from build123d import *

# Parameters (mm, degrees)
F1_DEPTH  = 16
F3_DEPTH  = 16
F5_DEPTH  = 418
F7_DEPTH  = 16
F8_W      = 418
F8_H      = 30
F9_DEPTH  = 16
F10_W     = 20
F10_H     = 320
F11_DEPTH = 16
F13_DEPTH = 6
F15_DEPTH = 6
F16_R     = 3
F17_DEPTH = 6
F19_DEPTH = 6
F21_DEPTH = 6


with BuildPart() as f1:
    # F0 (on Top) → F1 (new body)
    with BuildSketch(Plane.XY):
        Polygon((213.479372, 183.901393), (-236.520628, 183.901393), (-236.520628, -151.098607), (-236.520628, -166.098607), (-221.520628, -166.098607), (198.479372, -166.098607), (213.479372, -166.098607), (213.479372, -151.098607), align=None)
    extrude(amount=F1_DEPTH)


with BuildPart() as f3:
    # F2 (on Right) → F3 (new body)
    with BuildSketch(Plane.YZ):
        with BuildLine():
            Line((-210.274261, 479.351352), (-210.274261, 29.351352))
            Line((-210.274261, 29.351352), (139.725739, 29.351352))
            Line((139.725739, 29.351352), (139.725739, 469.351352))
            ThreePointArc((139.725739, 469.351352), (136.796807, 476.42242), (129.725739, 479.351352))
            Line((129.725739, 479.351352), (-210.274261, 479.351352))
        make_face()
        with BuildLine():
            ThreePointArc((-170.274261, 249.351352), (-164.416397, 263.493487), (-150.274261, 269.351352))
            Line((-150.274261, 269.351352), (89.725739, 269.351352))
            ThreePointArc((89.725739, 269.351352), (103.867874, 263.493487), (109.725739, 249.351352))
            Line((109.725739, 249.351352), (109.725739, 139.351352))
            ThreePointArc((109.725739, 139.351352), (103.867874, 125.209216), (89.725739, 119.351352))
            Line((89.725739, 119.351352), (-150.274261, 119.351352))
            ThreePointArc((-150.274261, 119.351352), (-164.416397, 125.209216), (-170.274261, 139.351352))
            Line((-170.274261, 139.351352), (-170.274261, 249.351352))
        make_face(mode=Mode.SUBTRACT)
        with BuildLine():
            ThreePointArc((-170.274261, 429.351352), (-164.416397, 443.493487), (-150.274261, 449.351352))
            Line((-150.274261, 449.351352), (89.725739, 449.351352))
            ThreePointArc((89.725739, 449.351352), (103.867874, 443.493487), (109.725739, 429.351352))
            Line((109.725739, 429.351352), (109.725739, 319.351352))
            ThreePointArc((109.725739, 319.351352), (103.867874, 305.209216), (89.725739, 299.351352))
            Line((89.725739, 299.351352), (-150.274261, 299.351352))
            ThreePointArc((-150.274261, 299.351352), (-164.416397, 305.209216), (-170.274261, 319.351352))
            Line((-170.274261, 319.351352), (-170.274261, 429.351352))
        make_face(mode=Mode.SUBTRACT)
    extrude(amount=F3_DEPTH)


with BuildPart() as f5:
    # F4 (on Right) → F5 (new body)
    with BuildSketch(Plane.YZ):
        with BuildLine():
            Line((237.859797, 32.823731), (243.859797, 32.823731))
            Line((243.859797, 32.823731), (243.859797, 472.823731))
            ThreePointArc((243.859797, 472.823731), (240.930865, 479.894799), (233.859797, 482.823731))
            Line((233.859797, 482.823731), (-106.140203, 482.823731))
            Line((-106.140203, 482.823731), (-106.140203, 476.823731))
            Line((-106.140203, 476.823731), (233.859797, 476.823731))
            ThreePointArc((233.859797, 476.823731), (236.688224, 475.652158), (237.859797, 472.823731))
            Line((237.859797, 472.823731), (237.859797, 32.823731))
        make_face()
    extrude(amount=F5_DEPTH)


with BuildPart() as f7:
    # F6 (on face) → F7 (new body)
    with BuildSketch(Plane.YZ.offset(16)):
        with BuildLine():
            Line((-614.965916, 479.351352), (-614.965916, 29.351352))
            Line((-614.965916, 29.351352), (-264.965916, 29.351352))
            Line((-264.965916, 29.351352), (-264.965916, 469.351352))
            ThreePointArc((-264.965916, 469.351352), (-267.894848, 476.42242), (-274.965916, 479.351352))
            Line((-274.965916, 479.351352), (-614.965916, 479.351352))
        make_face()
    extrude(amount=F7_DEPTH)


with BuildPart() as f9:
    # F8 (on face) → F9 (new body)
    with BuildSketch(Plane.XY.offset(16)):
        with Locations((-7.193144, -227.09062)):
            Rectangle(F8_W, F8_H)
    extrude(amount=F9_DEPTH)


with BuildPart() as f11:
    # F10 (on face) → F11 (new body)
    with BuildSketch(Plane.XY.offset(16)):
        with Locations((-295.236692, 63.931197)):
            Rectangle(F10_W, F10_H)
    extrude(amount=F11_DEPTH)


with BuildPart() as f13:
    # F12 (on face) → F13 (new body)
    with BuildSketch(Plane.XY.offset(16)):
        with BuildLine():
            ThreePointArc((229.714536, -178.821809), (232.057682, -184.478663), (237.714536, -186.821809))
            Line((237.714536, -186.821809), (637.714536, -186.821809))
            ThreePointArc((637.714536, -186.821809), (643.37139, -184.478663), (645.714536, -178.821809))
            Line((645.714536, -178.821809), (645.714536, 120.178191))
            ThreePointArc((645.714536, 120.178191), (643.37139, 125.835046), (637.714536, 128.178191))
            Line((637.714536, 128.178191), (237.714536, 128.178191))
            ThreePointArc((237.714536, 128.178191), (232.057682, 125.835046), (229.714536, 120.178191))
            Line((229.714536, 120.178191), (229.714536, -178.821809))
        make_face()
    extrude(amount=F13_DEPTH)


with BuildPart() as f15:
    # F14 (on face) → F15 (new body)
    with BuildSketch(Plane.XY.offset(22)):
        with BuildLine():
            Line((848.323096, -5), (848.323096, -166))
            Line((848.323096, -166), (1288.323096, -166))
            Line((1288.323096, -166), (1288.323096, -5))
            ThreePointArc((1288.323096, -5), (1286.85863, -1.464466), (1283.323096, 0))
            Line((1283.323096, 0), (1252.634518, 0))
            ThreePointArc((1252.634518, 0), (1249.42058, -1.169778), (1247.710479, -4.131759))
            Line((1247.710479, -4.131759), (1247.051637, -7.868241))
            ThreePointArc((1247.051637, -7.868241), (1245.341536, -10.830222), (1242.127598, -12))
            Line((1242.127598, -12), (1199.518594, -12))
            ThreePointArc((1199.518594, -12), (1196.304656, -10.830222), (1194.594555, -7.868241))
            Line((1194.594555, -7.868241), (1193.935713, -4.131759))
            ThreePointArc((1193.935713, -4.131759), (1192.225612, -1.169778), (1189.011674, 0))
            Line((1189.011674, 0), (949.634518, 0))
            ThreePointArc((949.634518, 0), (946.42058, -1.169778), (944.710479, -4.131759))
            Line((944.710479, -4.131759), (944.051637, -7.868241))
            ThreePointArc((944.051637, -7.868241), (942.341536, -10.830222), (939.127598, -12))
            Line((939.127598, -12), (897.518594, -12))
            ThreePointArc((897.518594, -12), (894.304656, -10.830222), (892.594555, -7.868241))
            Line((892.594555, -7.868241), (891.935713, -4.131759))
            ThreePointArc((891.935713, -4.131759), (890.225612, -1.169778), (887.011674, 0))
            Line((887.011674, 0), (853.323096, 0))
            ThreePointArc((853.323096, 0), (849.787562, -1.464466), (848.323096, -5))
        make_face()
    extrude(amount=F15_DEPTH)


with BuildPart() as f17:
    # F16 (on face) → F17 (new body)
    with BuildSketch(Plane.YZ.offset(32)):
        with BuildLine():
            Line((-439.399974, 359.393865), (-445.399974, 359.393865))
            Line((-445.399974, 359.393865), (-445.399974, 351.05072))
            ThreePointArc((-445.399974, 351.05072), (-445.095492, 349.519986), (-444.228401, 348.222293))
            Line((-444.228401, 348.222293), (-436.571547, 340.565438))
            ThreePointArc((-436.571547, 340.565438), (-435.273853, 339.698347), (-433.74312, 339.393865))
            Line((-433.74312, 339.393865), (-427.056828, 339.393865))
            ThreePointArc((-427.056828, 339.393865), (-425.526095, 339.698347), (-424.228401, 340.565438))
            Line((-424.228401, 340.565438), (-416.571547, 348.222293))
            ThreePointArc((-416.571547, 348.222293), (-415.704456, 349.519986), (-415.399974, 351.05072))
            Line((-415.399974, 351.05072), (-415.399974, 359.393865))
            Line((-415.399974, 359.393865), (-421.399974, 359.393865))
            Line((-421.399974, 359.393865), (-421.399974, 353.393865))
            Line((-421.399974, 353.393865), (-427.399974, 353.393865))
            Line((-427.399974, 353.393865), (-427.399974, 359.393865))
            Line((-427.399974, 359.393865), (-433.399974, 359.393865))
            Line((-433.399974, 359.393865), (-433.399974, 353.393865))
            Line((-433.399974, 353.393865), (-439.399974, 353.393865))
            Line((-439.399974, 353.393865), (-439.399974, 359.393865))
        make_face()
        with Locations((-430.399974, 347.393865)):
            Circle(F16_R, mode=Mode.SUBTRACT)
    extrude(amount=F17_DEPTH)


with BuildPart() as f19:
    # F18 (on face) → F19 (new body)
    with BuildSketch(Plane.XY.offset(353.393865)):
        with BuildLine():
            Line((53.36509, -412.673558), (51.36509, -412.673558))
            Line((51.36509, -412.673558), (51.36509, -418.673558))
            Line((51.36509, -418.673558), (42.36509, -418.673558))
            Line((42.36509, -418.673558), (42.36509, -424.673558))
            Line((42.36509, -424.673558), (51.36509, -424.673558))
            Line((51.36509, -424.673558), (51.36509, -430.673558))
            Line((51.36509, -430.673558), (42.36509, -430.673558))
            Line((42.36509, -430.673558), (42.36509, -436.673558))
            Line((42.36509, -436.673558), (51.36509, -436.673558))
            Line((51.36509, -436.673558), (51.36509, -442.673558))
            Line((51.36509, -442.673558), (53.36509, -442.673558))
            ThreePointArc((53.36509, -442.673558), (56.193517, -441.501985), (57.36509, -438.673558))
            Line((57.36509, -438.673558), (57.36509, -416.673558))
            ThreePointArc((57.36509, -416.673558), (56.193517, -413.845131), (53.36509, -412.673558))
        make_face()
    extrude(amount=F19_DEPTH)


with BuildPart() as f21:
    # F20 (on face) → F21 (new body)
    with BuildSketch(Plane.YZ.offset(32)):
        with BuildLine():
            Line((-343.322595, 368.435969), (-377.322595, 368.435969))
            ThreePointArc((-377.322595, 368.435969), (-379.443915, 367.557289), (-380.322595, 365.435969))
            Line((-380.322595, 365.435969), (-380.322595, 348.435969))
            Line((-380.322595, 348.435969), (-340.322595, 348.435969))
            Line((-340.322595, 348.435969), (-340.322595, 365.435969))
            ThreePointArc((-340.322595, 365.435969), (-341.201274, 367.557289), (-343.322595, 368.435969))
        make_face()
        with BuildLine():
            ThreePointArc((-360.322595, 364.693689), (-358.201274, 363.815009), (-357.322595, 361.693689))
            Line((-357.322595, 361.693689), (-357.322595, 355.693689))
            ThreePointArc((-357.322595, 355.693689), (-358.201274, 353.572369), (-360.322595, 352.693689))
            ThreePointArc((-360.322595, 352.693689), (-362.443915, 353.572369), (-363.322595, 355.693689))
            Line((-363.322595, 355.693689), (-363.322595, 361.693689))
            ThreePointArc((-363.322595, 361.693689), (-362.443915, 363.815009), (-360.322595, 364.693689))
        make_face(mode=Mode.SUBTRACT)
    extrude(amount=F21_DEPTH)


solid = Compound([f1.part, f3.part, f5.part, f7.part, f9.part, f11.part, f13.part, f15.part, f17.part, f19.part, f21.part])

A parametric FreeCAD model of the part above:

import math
import FreeCAD as App
import Part
import Sketcher

V = App.Vector
Q = App.Units.Quantity


def add_polygon(sketch, points):
    """Adds a closed chain of lines whose ends are joined by coincident constraints."""
    first, n = sketch.GeometryCount, len(points)
    for a, b in zip(points, points[1:] + points[:1]):
        sketch.addGeometry(Part.LineSegment(App.Vector(*a, 0), App.Vector(*b, 0)), False)
    for i in range(n):
        sketch.addConstraint(Sketcher.Constraint("Coincident", first + i, 2, first + (i + 1) % n, 1))

doc = App.newDocument("Part")
params = doc.addObject("Spreadsheet::Sheet", "Params")
for row, (alias, value) in enumerate([
    ("sketch1_width", "450 mm"),
    ("sketch1_height", "350 mm"),
    ("pad1_length", "16 mm"),
    ("sketch2_radius", "9.999999 mm"),
    ("sketch2_radius2", "20 mm"),
    ("sketch2_width", "350 mm"),
    ("sketch2_width2", "240 mm"),
    ("sketch2_height", "450 mm"),
    ("pad2_length", "16 mm"),
    ("sketch3_radius", "9.999999 mm"),
    ("sketch3_radius2", "4 mm"),
    ("sketch3_width", "340 mm"),
    ("sketch3_height", "440 mm"),
    ("pad3_length", "418 mm"),
    ("sketch4_radius", "9.999999 mm"),
    ("sketch4_width", "350 mm"),
    ("sketch4_height", "450 mm"),
    ("pad4_length", "16 mm"),
    ("sketch5_width", "418 mm"),
    ("sketch5_height", "30 mm"),
    ("pad5_length", "16 mm"),
    ("sketch6_width", "20 mm"),
    ("sketch6_height", "320 mm"),
    ("pad6_length", "16 mm"),
    ("sketch7_radius", "8.000001 mm"),
    ("sketch7_width", "400 mm"),
    ("sketch7_height", "299 mm"),
    ("pad7_length", "6 mm"),
    ("sketch8_radius", "5 mm"),
    ("sketch8_width", "440 mm"),
    ("sketch8_height", "161 mm"),
    ("pad8_length", "6 mm"),
    ("sketch9_diameter", "6 mm"),
    ("sketch9_radius", "3.999999 mm"),
    ("sketch9_width", "6 mm"),
    ("pad9_length", "6 mm"),
    ("sketch10_radius", "4 mm"),
    ("sketch10_width", "2 mm"),
    ("sketch10_width2", "9 mm"),
    ("sketch10_height", "6 mm"),
    ("pad10_length", "6 mm"),
    ("sketch11_radius", "3.000001 mm"),
    ("sketch11_width", "34 mm"),
    ("sketch11_height", "17 mm"),
    ("sketch11_height2", "6 mm"),
    ("pad11_length", "6 mm"),
], start=1):
    params.set(f"A{row}", alias)
    params.set(f"B{row}", "=" + value)
    params.setAlias(f"B{row}", alias)

body = doc.addObject("PartDesign::Body", "Body")

# Sketch on XY plane
sketch1 = body.newObject("Sketcher::SketchObject", "Sketch")
sketch1.AttachmentSupport = (doc.getObject("XY_Plane"), [""])
sketch1.MapMode = "FlatFace"
add_polygon(sketch1, [(213.479372, 183.901393), (-236.520628, 183.901393), (-236.520628, -166.098607), (213.479372, -166.098607)])  # lines 0-3
sketch1.addConstraint(Sketcher.Constraint("Horizontal", 0))
sketch1.addConstraint(Sketcher.Constraint("Vertical", 1))
sketch1.addConstraint(Sketcher.Constraint("Horizontal", 2))
sketch1.addConstraint(Sketcher.Constraint("Vertical", 3))
sketch1.addConstraint(Sketcher.Constraint("DistanceX", 0, 2, 0, 1, Q("450 mm")))
sketch1.addConstraint(Sketcher.Constraint("DistanceY", 1, 2, 1, 1, Q("350 mm")))
sketch1.addConstraint(Sketcher.Constraint("DistanceX", 0, 2, -1, 1, Q("236.520628 mm")))
sketch1.addConstraint(Sketcher.Constraint("DistanceY", -1, 1, 0, 2, Q("183.901393 mm")))
sketch1.setExpression("Constraints[8]", "Params.sketch1_width")
sketch1.setExpression("Constraints[9]", "Params.sketch1_height")
pad1 = body.newObject("PartDesign::Pad", "Pad")
pad1.Profile = sketch1
pad1.setExpression("Length", "Params.pad1_length")
body2 = doc.addObject("PartDesign::Body", "Body001")

# Sketch on YZ plane
sketch2 = body2.newObject("Sketcher::SketchObject", "Sketch001")
sketch2.AttachmentSupport = (doc.getObject("YZ_Plane001"), [""])
sketch2.MapMode = "FlatFace"
sketch2.addGeometry(Part.LineSegment(V(-210.274261, 479.351352, 0), V(-210.274261, 29.351352, 0)), False)
sketch2.addGeometry(Part.LineSegment(V(-210.274261, 29.351352, 0), V(139.725739, 29.351352, 0)), False)
sketch2.addGeometry(Part.LineSegment(V(139.725739, 29.351352, 0), V(139.725739, 469.351352, 0)), False)
sketch2.addGeometry(Part.ArcOfCircle(Part.Circle(V(129.72574, 469.351353, 0), V(0, 0, 1), 9.999999), math.radians(-0.000004), math.radians(90.000004)), False)
sketch2.addGeometry(Part.LineSegment(V(129.725739, 479.351352, 0), V(-210.274261, 479.351352, 0)), False)
sketch2.addGeometry(Part.LineSegment(V(-170.274261, 139.351352, 0), V(-170.274261, 249.351352, 0)), False)
sketch2.addGeometry(Part.ArcOfCircle(Part.Circle(V(-150.274261, 249.351352, 0), V(0, 0, 1), 20), math.radians(90.000001), math.radians(179.999999)), False)
sketch2.addGeometry(Part.LineSegment(V(-150.274261, 269.351352, 0), V(89.725739, 269.351352, 0)), False)
sketch2.addGeometry(Part.ArcOfCircle(Part.Circle(V(89.725737, 249.35135, 0), V(0, 0, 1), 20.000002), math.radians(0.000006), math.radians(89.999994)), False)
sketch2.addGeometry(Part.LineSegment(V(109.725739, 249.351352, 0), V(109.725739, 139.351352, 0)), False)
sketch2.addGeometry(Part.ArcOfCircle(Part.Circle(V(89.725739, 139.351352, 0), V(0, 0, 1), 20), math.radians(-89.999999), math.radians(-0.000001)), False)
sketch2.addGeometry(Part.LineSegment(V(89.725739, 119.351352, 0), V(-150.274261, 119.351352, 0)), False)
sketch2.addGeometry(Part.ArcOfCircle(Part.Circle(V(-150.274262, 139.351351, 0), V(0, 0, 1), 19.999999), math.radians(179.999996), math.radians(270.000004)), False)
sketch2.addGeometry(Part.LineSegment(V(-170.274261, 319.351352, 0), V(-170.274261, 429.351352, 0)), False)
sketch2.addGeometry(Part.ArcOfCircle(Part.Circle(V(-150.274261, 429.351352, 0), V(0, 0, 1), 20), math.radians(90.000001), math.radians(179.999999)), False)
sketch2.addGeometry(Part.LineSegment(V(-150.274261, 449.351352, 0), V(89.725739, 449.351352, 0)), False)
sketch2.addGeometry(Part.ArcOfCircle(Part.Circle(V(89.725737, 429.35135, 0), V(0, 0, 1), 20.000002), math.radians(0.000006), math.radians(89.999994)), False)
sketch2.addGeometry(Part.LineSegment(V(109.725739, 429.351352, 0), V(109.725739, 319.351352, 0)), False)
sketch2.addGeometry(Part.ArcOfCircle(Part.Circle(V(89.725739, 319.351352, 0), V(0, 0, 1), 20), math.radians(-89.999999), math.radians(-0.000001)), False)
sketch2.addGeometry(Part.LineSegment(V(89.725739, 299.351352, 0), V(-150.274261, 299.351352, 0)), False)
sketch2.addGeometry(Part.ArcOfCircle(Part.Circle(V(-150.274262, 319.351351, 0), V(0, 0, 1), 19.999999), math.radians(179.999996), math.radians(270.000004)), False)
sketch2.addConstraint(Sketcher.Constraint("Coincident", 0, 2, 1, 1))
sketch2.addConstraint(Sketcher.Constraint("Coincident", 1, 2, 2, 1))
sketch2.addConstraint(Sketcher.Constraint("Tangent", 2, 2, 3, 1))
sketch2.addConstraint(Sketcher.Constraint("Tangent", 3, 2, 4, 1))
sketch2.addConstraint(Sketcher.Constraint("Coincident", 4, 2, 0, 1))
sketch2.addConstraint(Sketcher.Constraint("Tangent", 5, 2, 6, 2))
sketch2.addConstraint(Sketcher.Constraint("Tangent", 6, 1, 7, 1))
sketch2.addConstraint(Sketcher.Constraint("Tangent", 7, 2, 8, 2))
sketch2.addConstraint(Sketcher.Constraint("Tangent", 8, 1, 9, 1))
sketch2.addConstraint(Sketcher.Constraint("Tangent", 9, 2, 10, 2))
sketch2.addConstraint(Sketcher.Constraint("Tangent", 10, 1, 11, 1))
sketch2.addConstraint(Sketcher.Constraint("Tangent", 11, 2, 12, 2))
sketch2.addConstraint(Sketcher.Constraint("Tangent", 12, 1, 5, 1))
sketch2.addConstraint(Sketcher.Constraint("Tangent", 13, 2, 14, 2))
sketch2.addConstraint(Sketcher.Constraint("Tangent", 14, 1, 15, 1))
sketch2.addConstraint(Sketcher.Constraint("Tangent", 15, 2, 16, 2))
sketch2.addConstraint(Sketcher.Constraint("Tangent", 16, 1, 17, 1))
sketch2.addConstraint(Sketcher.Constraint("Tangent", 17, 2, 18, 2))
sketch2.addConstraint(Sketcher.Constraint("Tangent", 18, 1, 19, 1))
sketch2.addConstraint(Sketcher.Constraint("Tangent", 19, 2, 20, 2))
sketch2.addConstraint(Sketcher.Constraint("Tangent", 20, 1, 13, 1))
sketch2.addConstraint(Sketcher.Constraint("Vertical", 0))
sketch2.addConstraint(Sketcher.Constraint("Horizontal", 1))
sketch2.addConstraint(Sketcher.Constraint("Vertical", 2))
sketch2.addConstraint(Sketcher.Constraint("Horizontal", 4))
sketch2.addConstraint(Sketcher.Constraint("Vertical", 5))
sketch2.addConstraint(Sketcher.Constraint("Horizontal", 7))
sketch2.addConstraint(Sketcher.Constraint("Vertical", 9))
sketch2.addConstraint(Sketcher.Constraint("Horizontal", 11))
sketch2.addConstraint(Sketcher.Constraint("Vertical", 13))
sketch2.addConstraint(Sketcher.Constraint("Horizontal", 15))
sketch2.addConstraint(Sketcher.Constraint("Vertical", 17))
sketch2.addConstraint(Sketcher.Constraint("Horizontal", 19))
sketch2.addConstraint(Sketcher.Constraint("Equal", 6, 8))
sketch2.addConstraint(Sketcher.Constraint("Equal", 8, 10))
sketch2.addConstraint(Sketcher.Constraint("Equal", 10, 12))
sketch2.addConstraint(Sketcher.Constraint("Equal", 12, 14))
sketch2.addConstraint(Sketcher.Constraint("Equal", 14, 16))
sketch2.addConstraint(Sketcher.Constraint("Equal", 16, 18))
sketch2.addConstraint(Sketcher.Constraint("Equal", 18, 20))
sketch2.addConstraint(Sketcher.Constraint("Vertical", 12, 3, 14, 3))
sketch2.addConstraint(Sketcher.Constraint("Vertical", 10, 3, 16, 3))
sketch2.addConstraint(Sketcher.Constraint("Equal", 9, 13))
sketch2.addConstraint(Sketcher.Constraint("Radius", 3, Q("9.999999 mm")))
sketch2.addConstraint(Sketcher.Constraint("Radius", 6, Q("20 mm")))
sketch2.addConstraint(Sketcher.Constraint("DistanceX", 1, 1, 1, 2, Q("350 mm")))
sketch2.addConstraint(Sketcher.Constraint("DistanceX", 7, 1, 7, 2, Q("240 mm")))
sketch2.addConstraint(Sketcher.Constraint("DistanceY", 0, 2, 0, 1, Q("450 mm")))
sketch2.addConstraint(Sketcher.Constraint("DistanceY", 5, 1, 5, 2, Q("110 mm")))
sketch2.addConstraint(Sketcher.Constraint("DistanceX", 6, 3, 3, 3, Q("280 mm")))
sketch2.addConstraint(Sketcher.Constraint("DistanceY", 6, 3, 3, 3, Q("220.000001 mm")))
sketch2.addConstraint(Sketcher.Constraint("DistanceY", 6, 3, 14, 3, Q("180 mm")))
sketch2.addConstraint(Sketcher.Constraint("DistanceX", -1, 1, 3, 3, Q("129.72574 mm")))
sketch2.addConstraint(Sketcher.Constraint("DistanceY", -1, 1, 6, 3, Q("249.351352 mm")))
sketch2.setExpression("Constraints[43]", "Params.sketch2_radius")
sketch2.setExpression("Constraints[44]", "Params.sketch2_radius2")
sketch2.setExpression("Constraints[45]", "Params.sketch2_width")
sketch2.setExpression("Constraints[46]", "Params.sketch2_width2")
sketch2.setExpression("Constraints[47]", "Params.sketch2_height")
pad2 = body2.newObject("PartDesign::Pad", "Pad001")
pad2.Profile = sketch2
pad2.setExpression("Length", "Params.pad2_length")
body3 = doc.addObject("PartDesign::Body", "Body002")

# Sketch on YZ plane
sketch3 = body3.newObject("Sketcher::SketchObject", "Sketch002")
sketch3.AttachmentSupport = (doc.getObject("YZ_Plane002"), [""])
sketch3.MapMode = "FlatFace"
sketch3.addGeometry(Part.LineSegment(V(237.859797, 32.823731, 0), V(243.859797, 32.823731, 0)), False)
sketch3.addGeometry(Part.LineSegment(V(243.859797, 32.823731, 0), V(243.859797, 472.823731, 0)), False)
sketch3.addGeometry(Part.ArcOfCircle(Part.Circle(V(233.859798, 472.823732, 0), V(0, 0, 1), 9.999999), math.radians(-0.000004), math.radians(90.000004)), False)
sketch3.addGeometry(Part.LineSegment(V(233.859797, 482.823731, 0), V(-106.140203, 482.823731, 0)), False)
sketch3.addGeometry(Part.LineSegment(V(-106.140203, 482.823731, 0), V(-106.140203, 476.823731, 0)), False)
sketch3.addGeometry(Part.LineSegment(V(-106.140203, 476.823731, 0), V(233.859797, 476.823731, 0)), False)
sketch3.addGeometry(Part.ArcOfCircle(Part.Circle(V(233.859797, 472.823731, 0), V(0, 0, 1), 4), math.radians(0.000006), math.radians(89.999994)), False)
sketch3.addGeometry(Part.LineSegment(V(237.859797, 472.823731, 0), V(237.859797, 32.823731, 0)), False)
sketch3.addConstraint(Sketcher.Constraint("Coincident", 0, 2, 1, 1))
sketch3.addConstraint(Sketcher.Constraint("Tangent", 1, 2, 2, 1))
sketch3.addConstraint(Sketcher.Constraint("Tangent", 2, 2, 3, 1))
sketch3.addConstraint(Sketcher.Constraint("Coincident", 3, 2, 4, 1))
sketch3.addConstraint(Sketcher.Constraint("Coincident", 4, 2, 5, 1))
sketch3.addConstraint(Sketcher.Constraint("Tangent", 5, 2, 6, 2))
sketch3.addConstraint(Sketcher.Constraint("Tangent", 6, 1, 7, 1))
sketch3.addConstraint(Sketcher.Constraint("Coincident", 7, 2, 0, 1))
sketch3.addConstraint(Sketcher.Constraint("Horizontal", 0))
sketch3.addConstraint(Sketcher.Constraint("Vertical", 1))
sketch3.addConstraint(Sketcher.Constraint("Horizontal", 3))
sketch3.addConstraint(Sketcher.Constraint("Vertical", 4))
sketch3.addConstraint(Sketcher.Constraint("Horizontal", 5))
sketch3.addConstraint(Sketcher.Constraint("Vertical", 7))
sketch3.addConstraint(Sketcher.Constraint("Coincident", 6, 3, 2, 3))
sketch3.addConstraint(Sketcher.Constraint("Radius", 2, Q("9.999999 mm")))
sketch3.addConstraint(Sketcher.Constraint("Radius", 6, Q("4 mm")))
sketch3.addConstraint(Sketcher.Constraint("DistanceX", 3, 2, 3, 1, Q("340 mm")))
sketch3.addConstraint(Sketcher.Constraint("DistanceY", 1, 1, 1, 2, Q("440 mm")))
sketch3.addConstraint(Sketcher.Constraint("DistanceY", -1, 1, 2, 3, Q("472.823732 mm")))
sketch3.addConstraint(Sketcher.Constraint("DistanceX", -1, 1, 2, 3, Q("233.859798 mm")))
sketch3.setExpression("Constraints[15]", "Params.sketch3_radius")
sketch3.setExpression("Constraints[16]", "Params.sketch3_radius2")
sketch3.setExpression("Constraints[17]", "Params.sketch3_width")
sketch3.setExpression("Constraints[18]", "Params.sketch3_height")
pad3 = body3.newObject("PartDesign::Pad", "Pad002")
pad3.Profile = sketch3
pad3.setExpression("Length", "Params.pad3_length")
body4 = doc.addObject("PartDesign::Body", "Body003")

# Sketch on YZ plane
sketch4 = body4.newObject("Sketcher::SketchObject", "Sketch003")
sketch4.AttachmentSupport = (doc.getObject("YZ_Plane003"), [""])
sketch4.MapMode = "FlatFace"
sketch4.AttachmentOffset = App.Placement(V(0, 0, 16), App.Rotation())
sketch4.addGeometry(Part.LineSegment(V(-614.965916, 479.351352, 0), V(-614.965916, 29.351352, 0)), False)
sketch4.addGeometry(Part.LineSegment(V(-614.965916, 29.351352, 0), V(-264.965916, 29.351352, 0)), False)
sketch4.addGeometry(Part.LineSegment(V(-264.965916, 29.351352, 0), V(-264.965916, 469.351352, 0)), False)
sketch4.addGeometry(Part.ArcOfCircle(Part.Circle(V(-274.965915, 469.351353, 0), V(0, 0, 1), 9.999999), math.radians(-0.000004), math.radians(90.000004)), False)
sketch4.addGeometry(Part.LineSegment(V(-274.965916, 479.351352, 0), V(-614.965916, 479.351352, 0)), False)
sketch4.addConstraint(Sketcher.Constraint("Coincident", 0, 2, 1, 1))
sketch4.addConstraint(Sketcher.Constraint("Coincident", 1, 2, 2, 1))
sketch4.addConstraint(Sketcher.Constraint("Tangent", 2, 2, 3, 1))
sketch4.addConstraint(Sketcher.Constraint("Tangent", 3, 2, 4, 1))
sketch4.addConstraint(Sketcher.Constraint("Coincident", 4, 2, 0, 1))
sketch4.addConstraint(Sketcher.Constraint("Vertical", 0))
sketch4.addConstraint(Sketcher.Constraint("Horizontal", 1))
sketch4.addConstraint(Sketcher.Constraint("Vertical", 2))
sketch4.addConstraint(Sketcher.Constraint("Horizontal", 4))
sketch4.addConstraint(Sketcher.Constraint("Radius", 3, Q("9.999999 mm")))
sketch4.addConstraint(Sketcher.Constraint("DistanceX", 1, 1, 1, 2, Q("350 mm")))
sketch4.addConstraint(Sketcher.Constraint("DistanceY", 0, 2, 0, 1, Q("450 mm")))
sketch4.addConstraint(Sketcher.Constraint("DistanceY", -1, 1, 0, 2, Q("29.351352 mm")))
sketch4.addConstraint(Sketcher.Constraint("DistanceX", 3, 3, -1, 1, Q("274.965915 mm")))
sketch4.setExpression("Constraints[9]", "Params.sketch4_radius")
sketch4.setExpression("Constraints[10]", "Params.sketch4_width")
sketch4.setExpression("Constraints[11]", "Params.sketch4_height")
pad4 = body4.newObject("PartDesign::Pad", "Pad003")
pad4.Profile = sketch4
pad4.setExpression("Length", "Params.pad4_length")
body5 = doc.addObject("PartDesign::Body", "Body004")

# Sketch on XY plane
sketch5 = body5.newObject("Sketcher::SketchObject", "Sketch004")
sketch5.AttachmentSupport = (doc.getObject("XY_Plane004"), [""])
sketch5.MapMode = "FlatFace"
sketch5.AttachmentOffset = App.Placement(V(0, 0, 16), App.Rotation())
add_polygon(sketch5, [(-216.193144, -212.09062), (-216.193144, -242.09062), (201.806856, -242.09062), (201.806856, -212.09062)])  # lines 0-3
sketch5.addConstraint(Sketcher.Constraint("Vertical", 0))
sketch5.addConstraint(Sketcher.Constraint("Horizontal", 1))
sketch5.addConstraint(Sketcher.Constraint("Vertical", 2))
sketch5.addConstraint(Sketcher.Constraint("Horizontal", 3))
sketch5.addConstraint(Sketcher.Constraint("DistanceX", 1, 1, 1, 2, Q("418 mm")))
sketch5.addConstraint(Sketcher.Constraint("DistanceY", 0, 2, 0, 1, Q("30 mm")))
sketch5.addConstraint(Sketcher.Constraint("DistanceY", 0, 2, -1, 1, Q("242.09062 mm")))
sketch5.addConstraint(Sketcher.Constraint("DistanceX", 0, 2, -1, 1, Q("216.193144 mm")))
sketch5.setExpression("Constraints[8]", "Params.sketch5_width")
sketch5.setExpression("Constraints[9]", "Params.sketch5_height")
pad5 = body5.newObject("PartDesign::Pad", "Pad004")
pad5.Profile = sketch5
pad5.setExpression("Length", "Params.pad5_length")
body6 = doc.addObject("PartDesign::Body", "Body005")

# Sketch on XY plane
sketch6 = body6.newObject("Sketcher::SketchObject", "Sketch005")
sketch6.AttachmentSupport = (doc.getObject("XY_Plane005"), [""])
sketch6.MapMode = "FlatFace"
sketch6.AttachmentOffset = App.Placement(V(0, 0, 16), App.Rotation())
add_polygon(sketch6, [(-305.236692, 223.931197), (-305.236692, -96.068803), (-285.236692, -96.068803), (-285.236692, 223.931197)])  # lines 0-3
sketch6.addConstraint(Sketcher.Constraint("Vertical", 0))
sketch6.addConstraint(Sketcher.Constraint("Horizontal", 1))
sketch6.addConstraint(Sketcher.Constraint("Vertical", 2))
sketch6.addConstraint(Sketcher.Constraint("Horizontal", 3))
sketch6.addConstraint(Sketcher.Constraint("DistanceX", 1, 1, 1, 2, Q("20 mm")))
sketch6.addConstraint(Sketcher.Constraint("DistanceY", 0, 2, 0, 1, Q("320 mm")))
sketch6.addConstraint(Sketcher.Constraint("DistanceX", 0, 2, -1, 1, Q("305.236692 mm")))
sketch6.addConstraint(Sketcher.Constraint("DistanceY", 0, 2, -1, 1, Q("96.068803 mm")))
sketch6.setExpression("Constraints[8]", "Params.sketch6_width")
sketch6.setExpression("Constraints[9]", "Params.sketch6_height")
pad6 = body6.newObject("PartDesign::Pad", "Pad005")
pad6.Profile = sketch6
pad6.setExpression("Length", "Params.pad6_length")
body7 = doc.addObject("PartDesign::Body", "Body006")

# Sketch on XY plane
sketch7 = body7.newObject("Sketcher::SketchObject", "Sketch006")
sketch7.AttachmentSupport = (doc.getObject("XY_Plane006"), [""])
sketch7.MapMode = "FlatFace"
sketch7.AttachmentOffset = App.Placement(V(0, 0, 16), App.Rotation())
sketch7.addGeometry(Part.ArcOfCircle(Part.Circle(V(237.714537, -178.821808, 0), V(0, 0, 1), 8.000001), math.radians(-179.999994), math.radians(-90.000006)), False)
sketch7.addGeometry(Part.LineSegment(V(237.714536, -186.821809, 0), V(637.714536, -186.821809, 0)), False)
sketch7.addGeometry(Part.ArcOfCircle(Part.Circle(V(637.714535, -178.821808, 0), V(0, 0, 1), 8.000001), math.radians(-89.999994), math.radians(-0.000006)), False)
sketch7.addGeometry(Part.LineSegment(V(645.714536, -178.821809, 0), V(645.714536, 120.178191, 0)), False)
sketch7.addGeometry(Part.ArcOfCircle(Part.Circle(V(637.714537, 120.178192, 0), V(0, 0, 1), 7.999999), math.radians(-0.000006), math.radians(90.000006)), False)
sketch7.addGeometry(Part.LineSegment(V(637.714536, 128.178191, 0), V(237.714536, 128.178191, 0)), False)
sketch7.addGeometry(Part.ArcOfCircle(Part.Circle(V(237.714535, 120.178192, 0), V(0, 0, 1), 7.999999), math.radians(89.999994), math.radians(180.000006)), False)
sketch7.addGeometry(Part.LineSegment(V(229.714536, 120.178191, 0), V(229.714536, -178.821809, 0)), False)
sketch7.addConstraint(Sketcher.Constraint("Tangent", 0, 2, 1, 1))
sketch7.addConstraint(Sketcher.Constraint("Tangent", 1, 2, 2, 1))
sketch7.addConstraint(Sketcher.Constraint("Tangent", 2, 2, 3, 1))
sketch7.addConstraint(Sketcher.Constraint("Tangent", 3, 2, 4, 1))
sketch7.addConstraint(Sketcher.Constraint("Tangent", 4, 2, 5, 1))
sketch7.addConstraint(Sketcher.Constraint("Tangent", 5, 2, 6, 1))
sketch7.addConstraint(Sketcher.Constraint("Tangent", 6, 2, 7, 1))
sketch7.addConstraint(Sketcher.Constraint("Tangent", 7, 2, 0, 1))
sketch7.addConstraint(Sketcher.Constraint("Horizontal", 1))
sketch7.addConstraint(Sketcher.Constraint("Vertical", 3))
sketch7.addConstraint(Sketcher.Constraint("Horizontal", 5))
sketch7.addConstraint(Sketcher.Constraint("Vertical", 7))
sketch7.addConstraint(Sketcher.Constraint("Equal", 0, 2))
sketch7.addConstraint(Sketcher.Constraint("Equal", 2, 4))
sketch7.addConstraint(Sketcher.Constraint("Equal", 4, 6))
sketch7.addConstraint(Sketcher.Constraint("Radius", 0, Q("8.000001 mm")))
sketch7.addConstraint(Sketcher.Constraint("DistanceX", 1, 1, 1, 2, Q("400 mm")))
sketch7.addConstraint(Sketcher.Constraint("DistanceY", 3, 1, 3, 2, Q("299 mm")))
sketch7.addConstraint(Sketcher.Constraint("DistanceY", 0, 3, -1, 1, Q("178.821808 mm")))
sketch7.addConstraint(Sketcher.Constraint("DistanceX", -1, 1, 0, 3, Q("237.714537 mm")))
sketch7.setExpression("Constraints[15]", "Params.sketch7_radius")
sketch7.setExpression("Constraints[16]", "Params.sketch7_width")
sketch7.setExpression("Constraints[17]", "Params.sketch7_height")
pad7 = body7.newObject("PartDesign::Pad", "Pad006")
pad7.Profile = sketch7
pad7.setExpression("Length", "Params.pad7_length")
body8 = doc.addObject("PartDesign::Body", "Body007")

# Sketch on XY plane
sketch8 = body8.newObject("Sketcher::SketchObject", "Sketch007")
sketch8.AttachmentSupport = (doc.getObject("XY_Plane007"), [""])
sketch8.MapMode = "FlatFace"
sketch8.AttachmentOffset = App.Placement(V(0, 0, 22), App.Rotation())
sketch8.addGeometry(Part.LineSegment(V(848.323096, -5, 0), V(848.323096, -166, 0)), False)
sketch8.addGeometry(Part.LineSegment(V(848.323096, -166, 0), V(1288.323096, -166, 0)), False)
sketch8.addGeometry(Part.LineSegment(V(1288.323096, -166, 0), V(1288.323096, -5, 0)), False)
sketch8.addGeometry(Part.ArcOfCircle(Part.Circle(V(1283.323096, -5, 0), V(0, 0, 1), 5), math.radians(-0.000004), math.radians(90.000004)), False)
sketch8.addGeometry(Part.LineSegment(V(1283.323096, 0, 0), V(1252.634518, 0, 0)), False)
sketch8.addGeometry(Part.ArcOfCircle(Part.Circle(V(1252.634519, -5.000001, 0), V(0, 0, 1), 5.000001), math.radians(90.000008), math.radians(169.999987)), False)
sketch8.addGeometry(Part.LineSegment(V(1247.710479, -4.131759, 0), V(1247.051637, -7.868241, 0)), False)
sketch8.addGeometry(Part.ArcOfCircle(Part.Circle(V(1242.127597, -6.999999, 0), V(0, 0, 1), 5.000001), math.radians(-89.999992), math.radians(-10.000013)), False)
sketch8.addGeometry(Part.LineSegment(V(1242.127598, -12, 0), V(1199.518594, -12, 0)), False)
sketch8.addGeometry(Part.ArcOfCircle(Part.Circle(V(1199.518595, -6.999999, 0), V(0, 0, 1), 5.000001), math.radians(-169.999987), math.radians(-90.000008)), False)
sketch8.addGeometry(Part.LineSegment(V(1194.594555, -7.868241, 0), V(1193.935713, -4.131759, 0)), False)
sketch8.addGeometry(Part.ArcOfCircle(Part.Circle(V(1189.011673, -5.000001, 0), V(0, 0, 1), 5.000001), math.radians(10.000013), math.radians(89.999992)), False)
sketch8.addGeometry(Part.LineSegment(V(1189.011674, 0, 0), V(949.634518, 0, 0)), False)
sketch8.addGeometry(Part.ArcOfCircle(Part.Circle(V(949.634519, -5.000001, 0), V(0, 0, 1), 5.000001), math.radians(90.000008), math.radians(169.999987)), False)
sketch8.addGeometry(Part.LineSegment(V(944.710479, -4.131759, 0), V(944.051637, -7.868241, 0)), False)
sketch8.addGeometry(Part.ArcOfCircle(Part.Circle(V(939.127597, -6.999999, 0), V(0, 0, 1), 5.000001), math.radians(-89.999992), math.radians(-10.000013)), False)
sketch8.addGeometry(Part.LineSegment(V(939.127598, -12, 0), V(897.518594, -12, 0)), False)
sketch8.addGeometry(Part.ArcOfCircle(Part.Circle(V(897.518595, -6.999999, 0), V(0, 0, 1), 5.000001), math.radians(-169.999987), math.radians(-90.000008)), False)
sketch8.addGeometry(Part.LineSegment(V(892.594555, -7.868241, 0), V(891.935713, -4.131759, 0)), False)
sketch8.addGeometry(Part.ArcOfCircle(Part.Circle(V(887.011673, -5.000001, 0), V(0, 0, 1), 5.000001), math.radians(10.000013), math.radians(89.999992)), False)
sketch8.addGeometry(Part.LineSegment(V(887.011674, 0, 0), V(853.323096, 0, 0)), False)
sketch8.addGeometry(Part.ArcOfCircle(Part.Circle(V(853.323096, -5, 0), V(0, 0, 1), 5), math.radians(89.999996), math.radians(180.000004)), False)
sketch8.addConstraint(Sketcher.Constraint("Coincident", 0, 2, 1, 1))
sketch8.addConstraint(Sketcher.Constraint("Coincident", 1, 2, 2, 1))
sketch8.addConstraint(Sketcher.Constraint("Tangent", 2, 2, 3, 1))
sketch8.addConstraint(Sketcher.Constraint("Tangent", 3, 2, 4, 1))
sketch8.addConstraint(Sketcher.Constraint("Tangent", 4, 2, 5, 1))
sketch8.addConstraint(Sketcher.Constraint("Tangent", 5, 2, 6, 1))
sketch8.addConstraint(Sketcher.Constraint("Tangent", 6, 2, 7, 2))
sketch8.addConstraint(Sketcher.Constraint("Tangent", 7, 1, 8, 1))
sketch8.addConstraint(Sketcher.Constraint("Tangent", 8, 2, 9, 2))
sketch8.addConstraint(Sketcher.Constraint("Tangent", 9, 1, 10, 1))
sketch8.addConstraint(Sketcher.Constraint("Tangent", 10, 2, 11, 1))
sketch8.addConstraint(Sketcher.Constraint("Tangent", 11, 2, 12, 1))
sketch8.addConstraint(Sketcher.Constraint("Tangent", 12, 2, 13, 1))
sketch8.addConstraint(Sketcher.Constraint("Tangent", 13, 2, 14, 1))
sketch8.addConstraint(Sketcher.Constraint("Tangent", 14, 2, 15, 2))
sketch8.addConstraint(Sketcher.Constraint("Tangent", 15, 1, 16, 1))
sketch8.addConstraint(Sketcher.Constraint("Tangent", 16, 2, 17, 2))
sketch8.addConstraint(Sketcher.Constraint("Tangent", 17, 1, 18, 1))
sketch8.addConstraint(Sketcher.Constraint("Tangent", 18, 2, 19, 1))
sketch8.addConstraint(Sketcher.Constraint("Tangent", 19, 2, 20, 1))
sketch8.addConstraint(Sketcher.Constraint("Tangent", 20, 2, 21, 1))
sketch8.addConstraint(Sketcher.Constraint("Tangent", 21, 2, 0, 1))
sketch8.addConstraint(Sketcher.Constraint("Vertical", 0))
sketch8.addConstraint(Sketcher.Constraint("Horizontal", 1))
sketch8.addConstraint(Sketcher.Constraint("Vertical", 2))
sketch8.addConstraint(Sketcher.Constraint("Horizontal", 4))
sketch8.addConstraint(Sketcher.Constraint("Horizontal", 8))
sketch8.addConstraint(Sketcher.Constraint("Horizontal", 12))
sketch8.addConstraint(Sketcher.Constraint("Horizontal", 16))
sketch8.addConstraint(Sketcher.Constraint("Horizontal", 20))
sketch8.addConstraint(Sketcher.Constraint("Equal", 3, 5))
sketch8.addConstraint(Sketcher.Constraint("Equal", 5, 7))
sketch8.addConstraint(Sketcher.Constraint("Equal", 7, 9))
sketch8.addConstraint(Sketcher.Constraint("Equal", 9, 11))
sketch8.addConstraint(Sketcher.Constraint("Equal", 11, 13))
sketch8.addConstraint(Sketcher.Constraint("Equal", 13, 15))
sketch8.addConstraint(Sketcher.Constraint("Equal", 15, 17))
sketch8.addConstraint(Sketcher.Constraint("Equal", 17, 19))
sketch8.addConstraint(Sketcher.Constraint("Equal", 19, 21))
sketch8.addConstraint(Sketcher.Constraint("PointOnObject", 3, 2, -1))
sketch8.addConstraint(Sketcher.Constraint("PointOnObject", 11, 2, -1))
sketch8.addConstraint(Sketcher.Constraint("PointOnObject", 19, 2, -1))
sketch8.addConstraint(Sketcher.Constraint("Parallel", 6, 14))
sketch8.addConstraint(Sketcher.Constraint("Parallel", 10, 18))
sketch8.addConstraint(Sketcher.Constraint("Horizontal", 9, 3, 15, 3))
sketch8.addConstraint(Sketcher.Constraint("Horizontal", 6, 2, 9, 1))
sketch8.addConstraint(Sketcher.Constraint("Radius", 3, Q("5 mm")))
sketch8.addConstraint(Sketcher.Constraint("DistanceX", 1, 1, 1, 2, Q("440 mm")))
sketch8.addConstraint(Sketcher.Constraint("DistanceY", 0, 2, 0, 1, Q("161 mm")))
sketch8.addConstraint(Sketcher.Constraint("Angle", 6, Q("-99.999991 deg")))
sketch8.addConstraint(Sketcher.Constraint("DistanceY", 7, 3, -1, 1, Q("6.999999 mm")))
sketch8.addConstraint(Sketcher.Constraint("DistanceX", 13, 3, 5, 3, Q("303 mm")))
sketch8.addConstraint(Sketcher.Constraint("DistanceX", 17, 3, 9, 3, Q("302 mm")))
sketch8.addConstraint(Sketcher.Constraint("DistanceX", 4, 2, 4, 1, Q("30.688578 mm")))
sketch8.addConstraint(Sketcher.Constraint("DistanceX", 20, 2, 20, 1, Q("33.688578 mm")))
sketch8.addConstraint(Sketcher.Constraint("DistanceX", -1, 1, 7, 1, Q("1242.127598 mm")))
sketch8.setExpression("Constraints[46]", "Params.sketch8_radius")
sketch8.setExpression("Constraints[47]", "Params.sketch8_width")
sketch8.setExpression("Constraints[48]", "Params.sketch8_height")
pad8 = body8.newObject("PartDesign::Pad", "Pad007")
pad8.Profile = sketch8
pad8.setExpression("Length", "Params.pad8_length")
body9 = doc.addObject("PartDesign::Body", "Body008")

# Sketch on YZ plane
sketch9 = body9.newObject("Sketcher::SketchObject", "Sketch008")
sketch9.AttachmentSupport = (doc.getObject("YZ_Plane008"), [""])
sketch9.MapMode = "FlatFace"
sketch9.AttachmentOffset = App.Placement(V(0, 0, 32), App.Rotation())
sketch9.addGeometry(Part.LineSegment(V(-439.399974, 359.393865, 0), V(-445.399974, 359.393865, 0)), False)
sketch9.addGeometry(Part.LineSegment(V(-445.399974, 359.393865, 0), V(-445.399974, 351.05072, 0)), False)
sketch9.addGeometry(Part.ArcOfCircle(Part.Circle(V(-441.399975, 351.05072, 0), V(0, 0, 1), 3.999999), math.radians(179.999998), math.radians(225.000008)), False)
sketch9.addGeometry(Part.LineSegment(V(-444.228401, 348.222293, 0), V(-436.571547, 340.565438, 0)), False)
sketch9.addGeometry(Part.ArcOfCircle(Part.Circle(V(-433.743118, 343.393869, 0), V(0, 0, 1), 4.000004), math.radians(-134.999981), math.radians(-90.000025)), False)
sketch9.addGeometry(Part.LineSegment(V(-433.74312, 339.393865, 0), V(-427.056828, 339.393865, 0)), False)
sketch9.addGeometry(Part.ArcOfCircle(Part.Circle(V(-427.05683, 343.393869, 0), V(0, 0, 1), 4.000004), math.radians(-89.999975), math.radians(-45.000019)), False)
sketch9.addGeometry(Part.LineSegment(V(-424.228401, 340.565438, 0), V(-416.571547, 348.222293, 0)), False)
sketch9.addGeometry(Part.ArcOfCircle(Part.Circle(V(-419.399973, 351.05072, 0), V(0, 0, 1), 3.999999), math.radians(-45.000008), math.radians(0.000002)), False)
sketch9.addGeometry(Part.LineSegment(V(-415.399974, 351.05072, 0), V(-415.399974, 359.393865, 0)), False)
sketch9.addGeometry(Part.LineSegment(V(-415.399974, 359.393865, 0), V(-421.399974, 359.393865, 0)), False)
sketch9.addGeometry(Part.LineSegment(V(-421.399974, 359.393865, 0), V(-421.399974, 353.393865, 0)), False)
sketch9.addGeometry(Part.LineSegment(V(-421.399974, 353.393865, 0), V(-427.399974, 353.393865, 0)), False)
sketch9.addGeometry(Part.LineSegment(V(-427.399974, 353.393865, 0), V(-427.399974, 359.393865, 0)), False)
sketch9.addGeometry(Part.LineSegment(V(-427.399974, 359.393865, 0), V(-433.399974, 359.393865, 0)), False)
sketch9.addGeometry(Part.LineSegment(V(-433.399974, 359.393865, 0), V(-433.399974, 353.393865, 0)), False)
sketch9.addGeometry(Part.LineSegment(V(-433.399974, 353.393865, 0), V(-439.399974, 353.393865, 0)), False)
sketch9.addGeometry(Part.LineSegment(V(-439.399974, 353.393865, 0), V(-439.399974, 359.393865, 0)), False)
sketch9.addGeometry(Part.Circle(V(-430.399974, 347.393865, 0), V(0, 0, 1), 3), False)
sketch9.addConstraint(Sketcher.Constraint("Coincident", 0, 2, 1, 1))
sketch9.addConstraint(Sketcher.Constraint("Tangent", 1, 2, 2, 1))
sketch9.addConstraint(Sketcher.Constraint("Tangent", 2, 2, 3, 1))
sketch9.addConstraint(Sketcher.Constraint("Tangent", 3, 2, 4, 1))
sketch9.addConstraint(Sketcher.Constraint("Tangent", 4, 2, 5, 1))
sketch9.addConstraint(Sketcher.Constraint("Tangent", 5, 2, 6, 1))
sketch9.addConstraint(Sketcher.Constraint("Tangent", 6, 2, 7, 1))
sketch9.addConstraint(Sketcher.Constraint("Tangent", 7, 2, 8, 1))
sketch9.addConstraint(Sketcher.Constraint("Tangent", 8, 2, 9, 1))
sketch9.addConstraint(Sketcher.Constraint("Coincident", 9, 2, 10, 1))
sketch9.addConstraint(Sketcher.Constraint("Coincident", 10, 2, 11, 1))
sketch9.addConstraint(Sketcher.Constraint("Coincident", 11, 2, 12, 1))
sketch9.addConstraint(Sketcher.Constraint("Coincident", 12, 2, 13, 1))
sketch9.addConstraint(Sketcher.Constraint("Coincident", 13, 2, 14, 1))
sketch9.addConstraint(Sketcher.Constraint("Coincident", 14, 2, 15, 1))
sketch9.addConstraint(Sketcher.Constraint("Coincident", 15, 2, 16, 1))
sketch9.addConstraint(Sketcher.Constraint("Coincident", 16, 2, 17, 1))
sketch9.addConstraint(Sketcher.Constraint("Coincident", 17, 2, 0, 1))
sketch9.addConstraint(Sketcher.Constraint("Horizontal", 0))
sketch9.addConstraint(Sketcher.Constraint("Vertical", 1))
sketch9.addConstraint(Sketcher.Constraint("Horizontal", 5))
sketch9.addConstraint(Sketcher.Constraint("Vertical", 9))
sketch9.addConstraint(Sketcher.Constraint("Horizontal", 10))
sketch9.addConstraint(Sketcher.Constraint("Vertical", 11))
sketch9.addConstraint(Sketcher.Constraint("Horizontal", 12))
sketch9.addConstraint(Sketcher.Constraint("Vertical", 13))
sketch9.addConstraint(Sketcher.Constraint("Horizontal", 14))
sketch9.addConstraint(Sketcher.Constraint("Vertical", 15))
sketch9.addConstraint(Sketcher.Constraint("Horizontal", 16))
sketch9.addConstraint(Sketcher.Constraint("Vertical", 17))
sketch9.addConstraint(Sketcher.Constraint("Equal", 4, 6))
sketch9.addConstraint(Sketcher.Constraint("Equal", 2, 8))
sketch9.addConstraint(Sketcher.Constraint("Perpendicular", 3, 7))
sketch9.addConstraint(Sketcher.Constraint("Horizontal", 2, 3, 8, 3))
sketch9.addConstraint(Sketcher.Constraint("Horizontal", 3, 2, 6, 2))
sketch9.addConstraint(Sketcher.Constraint("Horizontal", 0, 2, 9, 2))
sketch9.addConstraint(Sketcher.Constraint("Horizontal", 10, 2, 13, 2))
sketch9.addConstraint(Sketcher.Constraint("Horizontal", 12, 2, 15, 2))
sketch9.addConstraint(Sketcher.Constraint("Equal", 0, 10))
sketch9.addConstraint(Sketcher.Constraint("Equal", 10, 12))
sketch9.addConstraint(Sketcher.Constraint("Equal", 12, 14))
sketch9.addConstraint(Sketcher.Constraint("Equal", 14, 16))
sketch9.addConstraint(Sketcher.Constraint("Equal", 16, 11))
sketch9.addConstraint(Sketcher.Constraint("Diameter", 18, Q("6 mm")))
sketch9.addConstraint(Sketcher.Constraint("Radius", 2, Q("3.999999 mm")))
sketch9.addConstraint(Sketcher.Constraint("DistanceX", 0, 2, 0, 1, Q("6 mm")))
sketch9.addConstraint(Sketcher.Constraint("DistanceX", 2, 3, 18, 3, Q("11.000001 mm")))
sketch9.addConstraint(Sketcher.Constraint("DistanceY", 18, 3, 0, 2, Q("12 mm")))
sketch9.addConstraint(Sketcher.Constraint("DistanceY", 4, 2, 18, 3, Q("8 mm")))
sketch9.addConstraint(Sketcher.Constraint("Radius", 4, Q("4.000004 mm")))
sketch9.addConstraint(Sketcher.Constraint("DistanceX", 5, 1, 5, 2, Q("6.686292 mm")))
sketch9.addConstraint(Sketcher.Constraint("DistanceX", 2, 2, -1, 1, Q("444.228401 mm")))
sketch9.addConstraint(Sketcher.Constraint("DistanceY", -1, 1, 2, 3, Q("351.05072 mm")))
sketch9.setExpression("Constraints[43]", "Params.sketch9_diameter")
sketch9.setExpression("Constraints[44]", "Params.sketch9_radius")
sketch9.setExpression("Constraints[45]", "Params.sketch9_width")
pad9 = body9.newObject("PartDesign::Pad", "Pad008")
pad9.Profile = sketch9
pad9.setExpression("Length", "Params.pad9_length")
body10 = doc.addObject("PartDesign::Body", "Body009")

# Sketch on XY plane
sketch10 = body10.newObject("Sketcher::SketchObject", "Sketch009")
sketch10.AttachmentSupport = (doc.getObject("XY_Plane009"), [""])
sketch10.MapMode = "FlatFace"
sketch10.AttachmentOffset = App.Placement(V(0, 0, 353.393865), App.Rotation())
sketch10.addGeometry(Part.LineSegment(V(53.36509, -412.673558, 0), V(51.36509, -412.673558, 0)), False)
sketch10.addGeometry(Part.LineSegment(V(51.36509, -412.673558, 0), V(51.36509, -418.673558, 0)), False)
sketch10.addGeometry(Part.LineSegment(V(51.36509, -418.673558, 0), V(42.36509, -418.673558, 0)), False)
sketch10.addGeometry(Part.LineSegment(V(42.36509, -418.673558, 0), V(42.36509, -424.673558, 0)), False)
sketch10.addGeometry(Part.LineSegment(V(42.36509, -424.673558, 0), V(51.36509, -424.673558, 0)), False)
sketch10.addGeometry(Part.LineSegment(V(51.36509, -424.673558, 0), V(51.36509, -430.673558, 0)), False)
sketch10.addGeometry(Part.LineSegment(V(51.36509, -430.673558, 0), V(42.36509, -430.673558, 0)), False)
sketch10.addGeometry(Part.LineSegment(V(42.36509, -430.673558, 0), V(42.36509, -436.673558, 0)), False)
sketch10.addGeometry(Part.LineSegment(V(42.36509, -436.673558, 0), V(51.36509, -436.673558, 0)), False)
sketch10.addGeometry(Part.LineSegment(V(51.36509, -436.673558, 0), V(51.36509, -442.673558, 0)), False)
sketch10.addGeometry(Part.LineSegment(V(51.36509, -442.673558, 0), V(53.36509, -442.673558, 0)), False)
sketch10.addGeometry(Part.ArcOfCircle(Part.Circle(V(53.36509, -438.673558, 0), V(0, 0, 1), 4), math.radians(-89.999994), math.radians(-0.000006)), False)
sketch10.addGeometry(Part.LineSegment(V(57.36509, -438.673558, 0), V(57.36509, -416.673558, 0)), False)
sketch10.addGeometry(Part.ArcOfCircle(Part.Circle(V(53.36509, -416.673558, 0), V(0, 0, 1), 4), math.radians(0.000006), math.radians(89.999994)), False)
sketch10.addConstraint(Sketcher.Constraint("Coincident", 0, 2, 1, 1))
sketch10.addConstraint(Sketcher.Constraint("Coincident", 1, 2, 2, 1))
sketch10.addConstraint(Sketcher.Constraint("Coincident", 2, 2, 3, 1))
sketch10.addConstraint(Sketcher.Constraint("Coincident", 3, 2, 4, 1))
sketch10.addConstraint(Sketcher.Constraint("Coincident", 4, 2, 5, 1))
sketch10.addConstraint(Sketcher.Constraint("Coincident", 5, 2, 6, 1))
sketch10.addConstraint(Sketcher.Constraint("Coincident", 6, 2, 7, 1))
sketch10.addConstraint(Sketcher.Constraint("Coincident", 7, 2, 8, 1))
sketch10.addConstraint(Sketcher.Constraint("Coincident", 8, 2, 9, 1))
sketch10.addConstraint(Sketcher.Constraint("Coincident", 9, 2, 10, 1))
sketch10.addConstraint(Sketcher.Constraint("Tangent", 10, 2, 11, 1))
sketch10.addConstraint(Sketcher.Constraint("Tangent", 11, 2, 12, 1))
sketch10.addConstraint(Sketcher.Constraint("Tangent", 12, 2, 13, 1))
sketch10.addConstraint(Sketcher.Constraint("Tangent", 13, 2, 0, 1))
sketch10.addConstraint(Sketcher.Constraint("Horizontal", 0))
sketch10.addConstraint(Sketcher.Constraint("Vertical", 1))
sketch10.addConstraint(Sketcher.Constraint("Horizontal", 2))
sketch10.addConstraint(Sketcher.Constraint("Vertical", 3))
sketch10.addConstraint(Sketcher.Constraint("Horizontal", 4))
sketch10.addConstraint(Sketcher.Constraint("Vertical", 5))
sketch10.addConstraint(Sketcher.Constraint("Horizontal", 6))
sketch10.addConstraint(Sketcher.Constraint("Vertical", 7))
sketch10.addConstraint(Sketcher.Constraint("Horizontal", 8))
sketch10.addConstraint(Sketcher.Constraint("Vertical", 9))
sketch10.addConstraint(Sketcher.Constraint("Horizontal", 10))
sketch10.addConstraint(Sketcher.Constraint("Vertical", 12))
sketch10.addConstraint(Sketcher.Constraint("Equal", 11, 13))
sketch10.addConstraint(Sketcher.Constraint("Vertical", 1, 2, 4, 2))
sketch10.addConstraint(Sketcher.Constraint("Vertical", 3, 2, 6, 2))
sketch10.addConstraint(Sketcher.Constraint("Vertical", 5, 2, 8, 2))
sketch10.addConstraint(Sketcher.Constraint("Equal", 1, 3))
sketch10.addConstraint(Sketcher.Constraint("Equal", 3, 5))
sketch10.addConstraint(Sketcher.Constraint("Equal", 5, 7))
sketch10.addConstraint(Sketcher.Constraint("Equal", 7, 9))
sketch10.addConstraint(Sketcher.Constraint("Radius", 11, Q("4 mm")))
sketch10.addConstraint(Sketcher.Constraint("DistanceX", 0, 2, 0, 1, Q("2 mm")))
sketch10.addConstraint(Sketcher.Constraint("DistanceX", 2, 2, 2, 1, Q("9 mm")))
sketch10.addConstraint(Sketcher.Constraint("DistanceY", 1, 2, 1, 1, Q("6 mm")))
sketch10.addConstraint(Sketcher.Constraint("DistanceX", -1, 1, 11, 3, Q("53.36509 mm")))
sketch10.addConstraint(Sketcher.Constraint("DistanceY", 13, 3, -1, 1, Q("416.673558 mm")))
sketch10.setExpression("Constraints[34]", "Params.sketch10_radius")
sketch10.setExpression("Constraints[35]", "Params.sketch10_width")
sketch10.setExpression("Constraints[36]", "Params.sketch10_width2")
sketch10.setExpression("Constraints[37]", "Params.sketch10_height")
pad10 = body10.newObject("PartDesign::Pad", "Pad009")
pad10.Profile = sketch10
pad10.setExpression("Length", "Params.pad10_length")
body11 = doc.addObject("PartDesign::Body", "Body010")

# Sketch on YZ plane
sketch11 = body11.newObject("Sketcher::SketchObject", "Sketch010")
sketch11.AttachmentSupport = (doc.getObject("YZ_Plane010"), [""])
sketch11.MapMode = "FlatFace"
sketch11.AttachmentOffset = App.Placement(V(0, 0, 32), App.Rotation())
sketch11.addGeometry(Part.LineSegment(V(-343.322595, 368.435969, 0), V(-377.322595, 368.435969, 0)), False)
sketch11.addGeometry(Part.ArcOfCircle(Part.Circle(V(-377.322594, 365.435968, 0), V(0, 0, 1), 3.000001), math.radians(90.000022), math.radians(179.999978)), False)
sketch11.addGeometry(Part.LineSegment(V(-380.322595, 365.435969, 0), V(-380.322595, 348.435969, 0)), False)
sketch11.addGeometry(Part.LineSegment(V(-380.322595, 348.435969, 0), V(-340.322595, 348.435969, 0)), False)
sketch11.addGeometry(Part.LineSegment(V(-340.322595, 348.435969, 0), V(-340.322595, 365.435969, 0)), False)
sketch11.addGeometry(Part.ArcOfCircle(Part.Circle(V(-343.322594, 365.43597, 0), V(0, 0, 1), 2.999999), math.radians(-0.00001), math.radians(90.00001)), False)
sketch11.addGeometry(Part.ArcOfCircle(Part.Circle(V(-360.322594, 361.693688, 0), V(0, 0, 1), 3.000001), math.radians(90.000022), math.radians(179.999978)), False)
sketch11.addGeometry(Part.ArcOfCircle(Part.Circle(V(-360.322594, 361.69369, 0), V(0, 0, 1), 2.999999), math.radians(-0.00001), math.radians(90.00001)), False)
sketch11.addGeometry(Part.LineSegment(V(-357.322595, 361.693689, 0), V(-357.322595, 355.693689, 0)), False)
sketch11.addGeometry(Part.ArcOfCircle(Part.Circle(V(-360.322594, 355.693688, 0), V(0, 0, 1), 2.999999), math.radians(-90.00001), math.radians(0.00001)), False)
sketch11.addGeometry(Part.ArcOfCircle(Part.Circle(V(-360.322594, 355.69369, 0), V(0, 0, 1), 3.000001), math.radians(-179.999978), math.radians(-90.000022)), False)
sketch11.addGeometry(Part.LineSegment(V(-363.322595, 355.693689, 0), V(-363.322595, 361.693689, 0)), False)
sketch11.addConstraint(Sketcher.Constraint("Tangent", 0, 2, 1, 1))
sketch11.addConstraint(Sketcher.Constraint("Tangent", 1, 2, 2, 1))
sketch11.addConstraint(Sketcher.Constraint("Coincident", 2, 2, 3, 1))
sketch11.addConstraint(Sketcher.Constraint("Coincident", 3, 2, 4, 1))
sketch11.addConstraint(Sketcher.Constraint("Tangent", 4, 2, 5, 1))
sketch11.addConstraint(Sketcher.Constraint("Tangent", 5, 2, 0, 1))
sketch11.addConstraint(Sketcher.Constraint("Tangent", 6, 1, 7, 2))
sketch11.addConstraint(Sketcher.Constraint("Tangent", 7, 1, 8, 1))
sketch11.addConstraint(Sketcher.Constraint("Tangent", 8, 2, 9, 2))
sketch11.addConstraint(Sketcher.Constraint("Tangent", 9, 1, 10, 2))
sketch11.addConstraint(Sketcher.Constraint("Tangent", 10, 1, 11, 1))
sketch11.addConstraint(Sketcher.Constraint("Tangent", 11, 2, 6, 2))
sketch11.addConstraint(Sketcher.Constraint("Horizontal", 0))
sketch11.addConstraint(Sketcher.Constraint("Vertical", 2))
sketch11.addConstraint(Sketcher.Constraint("Horizontal", 3))
sketch11.addConstraint(Sketcher.Constraint("Vertical", 4))
sketch11.addConstraint(Sketcher.Constraint("Vertical", 8))
sketch11.addConstraint(Sketcher.Constraint("Vertical", 11))
sketch11.addConstraint(Sketcher.Constraint("Equal", 1, 5))
sketch11.addConstraint(Sketcher.Constraint("Equal", 5, 6))
sketch11.addConstraint(Sketcher.Constraint("Equal", 6, 7))
sketch11.addConstraint(Sketcher.Constraint("Equal", 7, 9))
sketch11.addConstraint(Sketcher.Constraint("Vertical", 10, 3, 6, 1))
sketch11.addConstraint(Sketcher.Constraint("Vertical", 6, 1, 9, 1))
sketch11.addConstraint(Sketcher.Constraint("Radius", 1, Q("3.000001 mm")))
sketch11.addConstraint(Sketcher.Constraint("DistanceX", 0, 2, 0, 1, Q("34 mm")))
sketch11.addConstraint(Sketcher.Constraint("DistanceY", 2, 2, 2, 1, Q("17 mm")))
sketch11.addConstraint(Sketcher.Constraint("DistanceY", 8, 2, 8, 1, Q("6 mm")))
sketch11.addConstraint(Sketcher.Constraint("DistanceX", 6, 3, 5, 3, Q("16.999999 mm")))
sketch11.addConstraint(Sketcher.Constraint("DistanceY", -1, 1, 5, 3, Q("365.43597 mm")))
sketch11.addConstraint(Sketcher.Constraint("DistanceY", -1, 1, 7, 3, Q("361.69369 mm")))
sketch11.addConstraint(Sketcher.Constraint("DistanceX", 1, 3, -1, 1, Q("377.322594 mm")))
sketch11.setExpression("Constraints[24]", "Params.sketch11_radius")
sketch11.setExpression("Constraints[25]", "Params.sketch11_width")
sketch11.setExpression("Constraints[26]", "Params.sketch11_height")
sketch11.setExpression("Constraints[27]", "Params.sketch11_height2")
pad11 = body11.newObject("PartDesign::Pad", "Pad010")
pad11.Profile = sketch11
pad11.setExpression("Length", "Params.pad11_length")

doc.recompute()
